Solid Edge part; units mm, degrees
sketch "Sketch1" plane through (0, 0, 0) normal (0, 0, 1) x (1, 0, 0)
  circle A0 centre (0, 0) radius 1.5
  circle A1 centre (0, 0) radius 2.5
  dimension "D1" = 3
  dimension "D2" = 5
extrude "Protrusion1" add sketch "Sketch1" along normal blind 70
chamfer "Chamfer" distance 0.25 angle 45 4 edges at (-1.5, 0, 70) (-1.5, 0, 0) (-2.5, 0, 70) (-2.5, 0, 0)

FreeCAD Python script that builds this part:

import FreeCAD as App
import Part
import Sketcher
from FreeCAD import Vector


def edges_at(feature, points):
    """Names of the edges that pass closest to the given points."""
    edges = feature.Shape.Edges
    near = lambda p: min(range(len(edges)), key=lambda i: edges[i].distToShape(Part.Vertex(*p))[0])
    return sorted({f"Edge{near(p) + 1}" for p in points})

doc = App.newDocument("Part")
body = doc.addObject("PartDesign::Body", "Body")

sketch1 = body.newObject("Sketcher::SketchObject", "Sketch")
sketch1.AttachmentSupport = (doc.getObject("XY_Plane"), [""])
sketch1.MapMode = "FlatFace"
sketch1.addGeometry([
    Part.Circle(Vector(0, 0, 0), Vector(0, 0, 1), 2.5),
    Part.Circle(Vector(0, 0, 0), Vector(0, 0, 1), 1.5),
], False)
sketch1.addConstraint([
    Sketcher.Constraint("Coincident", 0, 3, -1, 1),
    Sketcher.Constraint("Coincident", 1, 3, -1, 1),
    Sketcher.Constraint("Diameter", 0, 5.0),
    Sketcher.Constraint("Diameter", 1, 3.0),
])
pad1 = body.newObject("PartDesign::Pad", "Pad")
pad1.Profile = sketch1
pad1.Length = 70
doc.recompute()

chamfer = body.newObject("PartDesign::Chamfer", "Chamfer")
chamfer.Base = (pad1, edges_at(pad1, [
    (-1.5, 0, 70),
    (-1.5, 0, 0),
    (-2.5, 0, 70),
    (-2.5, 0, 0),
]))
chamfer.Size = 0.25

doc.recompute()
